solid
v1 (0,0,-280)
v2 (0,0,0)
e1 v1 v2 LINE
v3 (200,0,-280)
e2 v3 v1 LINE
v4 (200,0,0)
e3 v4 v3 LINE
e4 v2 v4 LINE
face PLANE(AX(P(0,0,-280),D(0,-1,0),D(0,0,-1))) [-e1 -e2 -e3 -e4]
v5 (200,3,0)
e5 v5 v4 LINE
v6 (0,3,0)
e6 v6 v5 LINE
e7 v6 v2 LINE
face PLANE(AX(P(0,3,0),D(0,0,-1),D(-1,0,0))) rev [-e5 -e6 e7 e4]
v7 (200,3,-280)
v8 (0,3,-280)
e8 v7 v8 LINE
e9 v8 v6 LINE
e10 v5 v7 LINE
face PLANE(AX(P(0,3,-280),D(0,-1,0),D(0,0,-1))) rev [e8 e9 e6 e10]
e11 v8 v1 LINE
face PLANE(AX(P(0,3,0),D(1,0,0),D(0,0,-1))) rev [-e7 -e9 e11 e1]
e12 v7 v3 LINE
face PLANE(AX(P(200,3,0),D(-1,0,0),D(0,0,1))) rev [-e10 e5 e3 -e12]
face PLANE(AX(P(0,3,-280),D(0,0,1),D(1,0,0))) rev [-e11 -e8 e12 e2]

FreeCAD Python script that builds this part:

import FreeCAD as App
import Part
import Sketcher
from FreeCAD import Vector

doc = App.newDocument("Part")
params = doc.addObject("Spreadsheet::Sheet", "Params")
for row, (alias, value) in enumerate([
    ("sketch1_width", "200 mm"),
    ("sketch1_height", "280 mm"),
    ("pad1_length", "3 mm"),
], start=1):
    params.set(f"A{row}", alias)
    params.set(f"B{row}", "=" + value)
    params.setAlias(f"B{row}", alias)

body = doc.addObject("PartDesign::Body", "Body")

sketch1 = doc.addObject("Sketcher::SketchObject", "Sketch")
body.addObject(sketch1)
sketch1.AttachmentSupport = (doc.XZ_Plane, [""])
sketch1.MapMode = "FlatFace"
sketch1.addGeometry(Part.LineSegment(Vector(0, -280, 0), Vector(0, 0, 0)), False)
sketch1.addGeometry(Part.LineSegment(Vector(0, 0, 0), Vector(200, 0, 0)), False)
sketch1.addGeometry(Part.LineSegment(Vector(200, 0, 0), Vector(200, -280, 0)), False)
sketch1.addGeometry(Part.LineSegment(Vector(200, -280, 0), Vector(0, -280, 0)), False)
sketch1.addConstraint(Sketcher.Constraint("Coincident", 0, 2, 1, 1))
sketch1.addConstraint(Sketcher.Constraint("Coincident", 1, 2, 2, 1))
sketch1.addConstraint(Sketcher.Constraint("Coincident", 2, 2, 3, 1))
sketch1.addConstraint(Sketcher.Constraint("Coincident", 3, 2, 0, 1))
sketch1.addConstraint(Sketcher.Constraint("Vertical", 0))
sketch1.addConstraint(Sketcher.Constraint("Horizontal", 1))
sketch1.addConstraint(Sketcher.Constraint("Vertical", 2))
sketch1.addConstraint(Sketcher.Constraint("Horizontal", 3))
sketch1.addConstraint(Sketcher.Constraint("Coincident", 0, 2, -1, 1))
sketch1.addConstraint(Sketcher.Constraint("DistanceX", 1, 1, 1, 2, 200.0))
sketch1.addConstraint(Sketcher.Constraint("DistanceY", 0, 1, 0, 2, 280.0))
sketch1.setExpression("Constraints[9]", "Params.sketch1_width")
sketch1.setExpression("Constraints[10]", "Params.sketch1_height")
pad1 = doc.addObject("PartDesign::Pad", "Pad")
body.addObject(pad1)
pad1.Profile = sketch1
pad1.setExpression("Length", "Params.pad1_length")
pad1.Reversed = True

doc.recompute()
